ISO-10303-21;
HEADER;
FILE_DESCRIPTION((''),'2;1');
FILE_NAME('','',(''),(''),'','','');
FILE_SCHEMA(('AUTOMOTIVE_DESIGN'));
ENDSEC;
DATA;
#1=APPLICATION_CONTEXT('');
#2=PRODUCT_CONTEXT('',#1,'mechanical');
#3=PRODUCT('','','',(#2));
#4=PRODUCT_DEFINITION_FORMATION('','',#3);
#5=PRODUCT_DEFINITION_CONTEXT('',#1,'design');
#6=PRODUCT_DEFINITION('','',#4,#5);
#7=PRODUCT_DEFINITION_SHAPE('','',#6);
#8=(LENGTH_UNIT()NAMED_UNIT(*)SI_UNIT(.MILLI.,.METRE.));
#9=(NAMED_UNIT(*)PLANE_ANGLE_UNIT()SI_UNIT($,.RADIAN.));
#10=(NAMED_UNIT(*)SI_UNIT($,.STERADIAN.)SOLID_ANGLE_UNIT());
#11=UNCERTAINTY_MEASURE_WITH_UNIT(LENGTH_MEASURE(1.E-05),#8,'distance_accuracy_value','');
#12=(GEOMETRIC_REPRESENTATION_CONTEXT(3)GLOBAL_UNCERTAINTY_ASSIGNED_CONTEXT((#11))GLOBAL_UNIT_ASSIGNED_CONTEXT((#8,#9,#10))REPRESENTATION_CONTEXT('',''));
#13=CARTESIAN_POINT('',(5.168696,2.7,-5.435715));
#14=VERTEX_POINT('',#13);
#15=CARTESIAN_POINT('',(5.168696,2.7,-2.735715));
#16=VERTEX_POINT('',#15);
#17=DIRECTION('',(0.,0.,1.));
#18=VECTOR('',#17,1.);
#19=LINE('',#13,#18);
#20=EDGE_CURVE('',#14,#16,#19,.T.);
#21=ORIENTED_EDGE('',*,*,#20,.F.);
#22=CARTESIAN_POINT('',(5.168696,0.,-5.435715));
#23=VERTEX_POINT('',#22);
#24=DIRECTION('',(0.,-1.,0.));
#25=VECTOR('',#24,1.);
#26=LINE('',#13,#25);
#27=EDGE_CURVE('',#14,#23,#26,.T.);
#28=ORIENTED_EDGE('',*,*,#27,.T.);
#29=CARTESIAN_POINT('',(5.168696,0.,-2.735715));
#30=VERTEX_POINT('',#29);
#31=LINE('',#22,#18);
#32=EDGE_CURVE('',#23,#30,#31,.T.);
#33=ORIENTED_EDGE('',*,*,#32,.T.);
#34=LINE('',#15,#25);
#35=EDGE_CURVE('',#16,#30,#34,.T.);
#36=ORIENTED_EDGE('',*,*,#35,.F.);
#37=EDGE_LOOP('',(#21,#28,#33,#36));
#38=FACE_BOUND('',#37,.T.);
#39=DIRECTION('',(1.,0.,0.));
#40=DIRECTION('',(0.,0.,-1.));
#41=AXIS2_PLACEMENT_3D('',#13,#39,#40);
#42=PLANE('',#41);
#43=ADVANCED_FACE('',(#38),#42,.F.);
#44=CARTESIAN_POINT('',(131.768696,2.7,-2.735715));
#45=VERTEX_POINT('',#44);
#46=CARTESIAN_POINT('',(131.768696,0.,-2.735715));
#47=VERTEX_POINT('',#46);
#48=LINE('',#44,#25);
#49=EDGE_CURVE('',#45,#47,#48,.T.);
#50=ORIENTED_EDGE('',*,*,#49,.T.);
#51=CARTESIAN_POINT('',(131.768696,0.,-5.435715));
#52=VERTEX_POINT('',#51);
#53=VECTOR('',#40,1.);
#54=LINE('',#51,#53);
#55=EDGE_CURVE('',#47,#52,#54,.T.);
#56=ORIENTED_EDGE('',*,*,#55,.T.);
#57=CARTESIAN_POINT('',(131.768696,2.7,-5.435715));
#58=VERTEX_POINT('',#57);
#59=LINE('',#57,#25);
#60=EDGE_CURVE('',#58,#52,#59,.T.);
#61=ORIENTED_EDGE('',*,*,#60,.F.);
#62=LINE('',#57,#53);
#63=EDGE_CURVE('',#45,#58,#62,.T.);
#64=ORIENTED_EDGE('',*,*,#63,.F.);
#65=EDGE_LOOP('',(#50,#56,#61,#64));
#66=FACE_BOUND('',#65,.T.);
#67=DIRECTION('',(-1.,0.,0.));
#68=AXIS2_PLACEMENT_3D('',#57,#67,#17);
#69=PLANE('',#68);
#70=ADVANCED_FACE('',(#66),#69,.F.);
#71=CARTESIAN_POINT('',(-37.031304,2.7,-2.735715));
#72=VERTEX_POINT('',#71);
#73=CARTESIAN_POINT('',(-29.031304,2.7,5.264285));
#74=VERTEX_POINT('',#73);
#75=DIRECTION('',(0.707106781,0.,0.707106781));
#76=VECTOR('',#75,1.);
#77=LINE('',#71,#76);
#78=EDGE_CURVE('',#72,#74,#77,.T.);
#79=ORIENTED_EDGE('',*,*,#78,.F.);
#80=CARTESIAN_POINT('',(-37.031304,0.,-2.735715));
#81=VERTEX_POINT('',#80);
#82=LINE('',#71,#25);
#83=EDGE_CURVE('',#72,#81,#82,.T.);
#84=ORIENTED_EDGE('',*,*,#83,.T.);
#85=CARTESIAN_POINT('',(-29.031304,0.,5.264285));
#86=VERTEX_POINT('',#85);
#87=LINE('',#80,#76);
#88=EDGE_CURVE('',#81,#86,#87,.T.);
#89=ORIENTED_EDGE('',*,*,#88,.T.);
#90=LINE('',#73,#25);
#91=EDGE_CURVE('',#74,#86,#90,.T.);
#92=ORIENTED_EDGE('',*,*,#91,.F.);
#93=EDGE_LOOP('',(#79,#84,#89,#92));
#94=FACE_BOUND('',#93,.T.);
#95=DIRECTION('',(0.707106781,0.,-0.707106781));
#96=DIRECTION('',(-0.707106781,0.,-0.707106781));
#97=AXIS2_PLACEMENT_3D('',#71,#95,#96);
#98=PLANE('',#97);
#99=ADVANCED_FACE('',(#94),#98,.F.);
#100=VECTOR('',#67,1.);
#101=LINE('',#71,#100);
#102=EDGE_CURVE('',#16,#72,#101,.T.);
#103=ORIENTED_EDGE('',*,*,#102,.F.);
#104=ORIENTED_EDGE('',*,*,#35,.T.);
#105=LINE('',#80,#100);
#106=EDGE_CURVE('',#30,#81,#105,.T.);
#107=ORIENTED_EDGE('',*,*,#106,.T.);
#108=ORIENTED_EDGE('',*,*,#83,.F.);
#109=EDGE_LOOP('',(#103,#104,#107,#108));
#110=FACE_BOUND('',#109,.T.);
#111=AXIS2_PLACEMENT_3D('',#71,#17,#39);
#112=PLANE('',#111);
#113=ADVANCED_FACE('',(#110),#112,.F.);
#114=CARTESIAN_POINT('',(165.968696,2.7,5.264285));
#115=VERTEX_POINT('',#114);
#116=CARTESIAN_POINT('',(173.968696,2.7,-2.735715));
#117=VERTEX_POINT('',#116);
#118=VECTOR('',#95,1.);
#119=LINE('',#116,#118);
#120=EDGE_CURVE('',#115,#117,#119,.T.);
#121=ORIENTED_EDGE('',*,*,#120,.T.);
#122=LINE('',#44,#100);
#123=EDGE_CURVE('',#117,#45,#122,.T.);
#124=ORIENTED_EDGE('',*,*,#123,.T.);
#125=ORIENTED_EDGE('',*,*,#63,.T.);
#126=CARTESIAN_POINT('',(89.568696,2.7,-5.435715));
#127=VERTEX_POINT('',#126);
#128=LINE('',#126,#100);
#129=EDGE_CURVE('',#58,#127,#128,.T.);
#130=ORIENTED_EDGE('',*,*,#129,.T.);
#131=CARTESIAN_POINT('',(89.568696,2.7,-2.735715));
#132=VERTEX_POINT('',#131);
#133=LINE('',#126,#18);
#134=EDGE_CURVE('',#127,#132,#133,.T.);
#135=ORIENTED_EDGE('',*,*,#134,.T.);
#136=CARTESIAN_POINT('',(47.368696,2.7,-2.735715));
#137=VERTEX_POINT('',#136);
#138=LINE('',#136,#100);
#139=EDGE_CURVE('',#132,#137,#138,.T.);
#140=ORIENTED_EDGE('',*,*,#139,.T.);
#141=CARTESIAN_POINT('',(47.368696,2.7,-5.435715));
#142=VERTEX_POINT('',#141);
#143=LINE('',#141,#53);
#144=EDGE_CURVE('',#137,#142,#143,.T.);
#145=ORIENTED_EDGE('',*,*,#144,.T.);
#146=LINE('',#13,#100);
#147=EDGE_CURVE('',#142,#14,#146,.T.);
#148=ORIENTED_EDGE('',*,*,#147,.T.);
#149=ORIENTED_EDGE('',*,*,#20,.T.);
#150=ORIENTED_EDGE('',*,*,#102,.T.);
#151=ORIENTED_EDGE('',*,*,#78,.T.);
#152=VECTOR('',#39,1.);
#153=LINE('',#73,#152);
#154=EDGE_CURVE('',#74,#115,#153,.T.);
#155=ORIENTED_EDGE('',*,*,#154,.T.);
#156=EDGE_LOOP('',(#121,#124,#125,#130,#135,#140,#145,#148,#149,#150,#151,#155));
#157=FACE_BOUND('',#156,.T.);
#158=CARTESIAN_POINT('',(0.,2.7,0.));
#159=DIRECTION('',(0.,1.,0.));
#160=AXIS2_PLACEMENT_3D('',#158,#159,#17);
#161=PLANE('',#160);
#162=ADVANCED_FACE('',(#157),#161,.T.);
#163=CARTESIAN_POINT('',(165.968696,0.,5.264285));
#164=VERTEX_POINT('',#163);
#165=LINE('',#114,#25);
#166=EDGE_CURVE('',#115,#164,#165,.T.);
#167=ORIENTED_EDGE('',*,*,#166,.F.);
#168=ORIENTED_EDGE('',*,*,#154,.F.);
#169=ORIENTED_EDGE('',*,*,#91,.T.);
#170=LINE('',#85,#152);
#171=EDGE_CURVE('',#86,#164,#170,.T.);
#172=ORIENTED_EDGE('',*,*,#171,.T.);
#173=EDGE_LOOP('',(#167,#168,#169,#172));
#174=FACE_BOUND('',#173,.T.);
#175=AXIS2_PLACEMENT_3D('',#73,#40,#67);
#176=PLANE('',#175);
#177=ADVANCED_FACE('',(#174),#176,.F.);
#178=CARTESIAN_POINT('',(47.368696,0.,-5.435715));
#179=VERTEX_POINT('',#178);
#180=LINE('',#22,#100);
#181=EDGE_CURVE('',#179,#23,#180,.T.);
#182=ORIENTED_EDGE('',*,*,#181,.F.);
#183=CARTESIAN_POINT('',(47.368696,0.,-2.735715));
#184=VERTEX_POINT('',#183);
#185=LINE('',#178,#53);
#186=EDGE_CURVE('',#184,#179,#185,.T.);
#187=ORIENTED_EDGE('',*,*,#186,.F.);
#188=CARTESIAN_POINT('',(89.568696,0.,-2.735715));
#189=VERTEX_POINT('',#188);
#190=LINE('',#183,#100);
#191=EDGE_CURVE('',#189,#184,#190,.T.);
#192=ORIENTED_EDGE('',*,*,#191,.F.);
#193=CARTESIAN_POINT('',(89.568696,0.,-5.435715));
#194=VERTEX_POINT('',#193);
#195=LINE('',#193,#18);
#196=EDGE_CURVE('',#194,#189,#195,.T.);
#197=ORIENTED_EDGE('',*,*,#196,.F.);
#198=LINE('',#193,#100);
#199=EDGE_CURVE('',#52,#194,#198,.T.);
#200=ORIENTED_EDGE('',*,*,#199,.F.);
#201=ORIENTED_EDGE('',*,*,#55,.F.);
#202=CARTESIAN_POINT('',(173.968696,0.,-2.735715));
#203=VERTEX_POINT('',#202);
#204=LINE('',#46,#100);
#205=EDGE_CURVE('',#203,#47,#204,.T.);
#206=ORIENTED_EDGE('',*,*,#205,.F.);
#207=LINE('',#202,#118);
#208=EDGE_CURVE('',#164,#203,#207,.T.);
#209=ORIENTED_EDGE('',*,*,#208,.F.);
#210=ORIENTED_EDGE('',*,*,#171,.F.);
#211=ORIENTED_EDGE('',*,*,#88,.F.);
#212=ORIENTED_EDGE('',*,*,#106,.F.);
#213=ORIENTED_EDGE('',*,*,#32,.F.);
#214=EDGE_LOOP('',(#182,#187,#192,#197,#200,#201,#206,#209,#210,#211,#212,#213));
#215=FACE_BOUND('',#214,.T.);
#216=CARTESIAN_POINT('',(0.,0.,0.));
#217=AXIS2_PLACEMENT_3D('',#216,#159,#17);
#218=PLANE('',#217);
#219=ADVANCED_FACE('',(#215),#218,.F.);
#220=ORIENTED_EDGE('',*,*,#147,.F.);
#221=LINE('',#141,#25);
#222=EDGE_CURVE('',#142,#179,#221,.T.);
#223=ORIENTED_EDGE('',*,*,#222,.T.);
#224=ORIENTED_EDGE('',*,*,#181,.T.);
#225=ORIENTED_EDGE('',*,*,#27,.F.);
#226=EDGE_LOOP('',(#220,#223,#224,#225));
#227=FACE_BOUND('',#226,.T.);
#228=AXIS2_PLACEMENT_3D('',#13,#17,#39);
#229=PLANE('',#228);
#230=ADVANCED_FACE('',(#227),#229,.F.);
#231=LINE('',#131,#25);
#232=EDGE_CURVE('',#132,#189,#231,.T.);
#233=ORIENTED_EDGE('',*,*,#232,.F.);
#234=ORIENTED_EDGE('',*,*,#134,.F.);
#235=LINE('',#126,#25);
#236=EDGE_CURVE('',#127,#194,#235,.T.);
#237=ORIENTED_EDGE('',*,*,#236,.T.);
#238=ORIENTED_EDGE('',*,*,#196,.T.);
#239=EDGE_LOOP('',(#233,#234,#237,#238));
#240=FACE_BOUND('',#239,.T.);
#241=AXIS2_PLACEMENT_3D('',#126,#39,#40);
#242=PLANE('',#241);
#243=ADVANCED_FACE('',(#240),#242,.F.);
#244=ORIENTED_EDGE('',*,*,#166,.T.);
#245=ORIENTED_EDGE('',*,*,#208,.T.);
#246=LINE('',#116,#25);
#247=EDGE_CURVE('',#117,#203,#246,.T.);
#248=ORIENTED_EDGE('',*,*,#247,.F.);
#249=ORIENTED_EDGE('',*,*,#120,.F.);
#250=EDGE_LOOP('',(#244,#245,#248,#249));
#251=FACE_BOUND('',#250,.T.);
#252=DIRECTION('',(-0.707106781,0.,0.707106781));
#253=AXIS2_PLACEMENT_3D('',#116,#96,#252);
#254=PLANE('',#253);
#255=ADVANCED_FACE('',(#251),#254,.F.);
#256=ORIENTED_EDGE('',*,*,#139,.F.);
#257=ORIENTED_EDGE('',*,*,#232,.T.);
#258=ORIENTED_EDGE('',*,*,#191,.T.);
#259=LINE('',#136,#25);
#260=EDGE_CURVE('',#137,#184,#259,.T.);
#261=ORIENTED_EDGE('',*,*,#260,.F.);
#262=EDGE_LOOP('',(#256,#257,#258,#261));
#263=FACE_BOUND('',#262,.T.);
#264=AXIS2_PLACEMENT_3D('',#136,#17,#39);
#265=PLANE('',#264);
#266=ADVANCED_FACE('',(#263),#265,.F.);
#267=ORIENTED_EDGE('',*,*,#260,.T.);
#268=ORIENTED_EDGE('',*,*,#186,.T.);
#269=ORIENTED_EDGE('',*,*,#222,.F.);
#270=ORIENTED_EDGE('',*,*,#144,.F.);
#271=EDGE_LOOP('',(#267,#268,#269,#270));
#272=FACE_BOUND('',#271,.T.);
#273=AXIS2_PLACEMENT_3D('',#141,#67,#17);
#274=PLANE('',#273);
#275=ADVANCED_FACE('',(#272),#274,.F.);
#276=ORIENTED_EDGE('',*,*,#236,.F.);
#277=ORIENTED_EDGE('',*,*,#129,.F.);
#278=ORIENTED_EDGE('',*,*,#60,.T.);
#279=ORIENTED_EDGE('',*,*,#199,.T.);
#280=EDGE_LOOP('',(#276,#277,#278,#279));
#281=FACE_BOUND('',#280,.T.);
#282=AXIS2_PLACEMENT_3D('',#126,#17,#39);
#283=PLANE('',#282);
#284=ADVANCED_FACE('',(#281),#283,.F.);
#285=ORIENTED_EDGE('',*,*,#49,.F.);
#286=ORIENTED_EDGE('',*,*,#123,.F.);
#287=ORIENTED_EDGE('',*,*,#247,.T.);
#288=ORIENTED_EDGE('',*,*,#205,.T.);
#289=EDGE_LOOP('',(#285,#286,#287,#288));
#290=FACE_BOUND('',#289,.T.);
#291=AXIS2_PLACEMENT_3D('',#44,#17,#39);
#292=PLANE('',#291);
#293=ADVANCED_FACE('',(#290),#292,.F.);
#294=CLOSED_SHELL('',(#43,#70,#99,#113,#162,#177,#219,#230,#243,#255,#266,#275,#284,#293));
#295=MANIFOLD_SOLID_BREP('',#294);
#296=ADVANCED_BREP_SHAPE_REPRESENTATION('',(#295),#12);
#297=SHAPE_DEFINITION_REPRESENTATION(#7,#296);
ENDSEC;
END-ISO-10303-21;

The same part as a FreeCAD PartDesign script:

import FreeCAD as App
import Part
import Sketcher

V = App.Vector
Q = App.Units.Quantity

doc = App.newDocument("Part")
body = doc.addObject("PartDesign::Body", "Body")

sketch1 = doc.addObject("Sketcher::SketchObject", "Sketch")
body.addObject(sketch1)
sketch1.AttachmentSupport = (doc.XZ_Plane, [""])
sketch1.MapMode = "FlatFace"
sketch1.addGeometry(Part.LineSegment(V(5.2, -2.7, 0), V(-37, -2.7, 0)), False)
sketch1.addGeometry(Part.LineSegment(V(-37, -2.7, 0), V(-29, 5.3, 0)), False)
sketch1.addGeometry(Part.LineSegment(V(-29, 5.3, 0), V(166, 5.3, 0)), False)
sketch1.addGeometry(Part.LineSegment(V(166, 5.3, 0), V(174, -2.7, 0)), False)
sketch1.addGeometry(Part.LineSegment(V(174, -2.7, 0), V(131.8, -2.7, 0)), False)
sketch1.addGeometry(Part.LineSegment(V(131.8, -2.7, 0), V(131.8, -5.4, 0)), False)
sketch1.addGeometry(Part.LineSegment(V(131.8, -5.4, 0), V(89.6, -5.4, 0)), False)
sketch1.addGeometry(Part.LineSegment(V(89.6, -5.4, 0), V(89.6, -2.7, 0)), False)
sketch1.addGeometry(Part.LineSegment(V(89.6, -2.7, 0), V(47.4, -2.7, 0)), False)
sketch1.addGeometry(Part.LineSegment(V(47.4, -2.7, 0), V(47.4, -5.4, 0)), False)
sketch1.addGeometry(Part.LineSegment(V(47.4, -5.4, 0), V(5.2, -5.4, 0)), False)
sketch1.addGeometry(Part.LineSegment(V(5.2, -5.4, 0), V(5.2, -2.7, 0)), False)
sketch1.addConstraint(Sketcher.Constraint("Coincident", 0, 2, 1, 1))
sketch1.addConstraint(Sketcher.Constraint("Coincident", 1, 2, 2, 1))
sketch1.addConstraint(Sketcher.Constraint("Coincident", 2, 2, 3, 1))
sketch1.addConstraint(Sketcher.Constraint("Coincident", 3, 2, 4, 1))
sketch1.addConstraint(Sketcher.Constraint("Coincident", 4, 2, 5, 1))
sketch1.addConstraint(Sketcher.Constraint("Coincident", 5, 2, 6, 1))
sketch1.addConstraint(Sketcher.Constraint("Coincident", 6, 2, 7, 1))
sketch1.addConstraint(Sketcher.Constraint("Coincident", 7, 2, 8, 1))
sketch1.addConstraint(Sketcher.Constraint("Coincident", 8, 2, 9, 1))
sketch1.addConstraint(Sketcher.Constraint("Coincident", 9, 2, 10, 1))
sketch1.addConstraint(Sketcher.Constraint("Coincident", 10, 2, 11, 1))
sketch1.addConstraint(Sketcher.Constraint("Coincident", 11, 2, 0, 1))
sketch1.addConstraint(Sketcher.Constraint("Horizontal", 0))
sketch1.addConstraint(Sketcher.Constraint("Horizontal", 2))
sketch1.addConstraint(Sketcher.Constraint("Horizontal", 4))
sketch1.addConstraint(Sketcher.Constraint("Vertical", 5))
sketch1.addConstraint(Sketcher.Constraint("Horizontal", 6))
sketch1.addConstraint(Sketcher.Constraint("Vertical", 7))
sketch1.addConstraint(Sketcher.Constraint("Horizontal", 8))
sketch1.addConstraint(Sketcher.Constraint("Vertical", 9))
sketch1.addConstraint(Sketcher.Constraint("Horizontal", 10))
sketch1.addConstraint(Sketcher.Constraint("Vertical", 11))
sketch1.addConstraint(Sketcher.Constraint("Perpendicular", 1, 3))
sketch1.addConstraint(Sketcher.Constraint("Horizontal", 0, 2, 3, 2))
sketch1.addConstraint(Sketcher.Constraint("Horizontal", 4, 2, 7, 2))
sketch1.addConstraint(Sketcher.Constraint("Horizontal", 6, 2, 9, 2))
sketch1.addConstraint(Sketcher.Constraint("Equal", 0, 4))
sketch1.addConstraint(Sketcher.Constraint("Equal", 4, 6))
sketch1.addConstraint(Sketcher.Constraint("Equal", 6, 8))
sketch1.addConstraint(Sketcher.Constraint("Equal", 8, 10))
sketch1.addConstraint(Sketcher.Constraint("Equal", 1, 3))
sketch1.addConstraint(Sketcher.Constraint("DistanceX", 2, 1, 2, 2, Q("195 mm")))
sketch1.addConstraint(Sketcher.Constraint("DistanceX", 0, 2, 0, 1, Q("42.2 mm")))
sketch1.addConstraint(Sketcher.Constraint("DistanceY", 5, 2, 5, 1, Q("2.7 mm")))
sketch1.addConstraint(Sketcher.Constraint("DistanceX", 0, 2, -1, 1, Q("37.031304 mm")))
sketch1.addConstraint(Sketcher.Constraint("DistanceY", 0, 2, -1, 1, Q("2.735715 mm")))
pad1 = doc.addObject("PartDesign::Pad", "Pad")
body.addObject(pad1)
pad1.Profile = sketch1
pad1.Length = 2.7
pad1.Reversed = True

doc.recompute()
